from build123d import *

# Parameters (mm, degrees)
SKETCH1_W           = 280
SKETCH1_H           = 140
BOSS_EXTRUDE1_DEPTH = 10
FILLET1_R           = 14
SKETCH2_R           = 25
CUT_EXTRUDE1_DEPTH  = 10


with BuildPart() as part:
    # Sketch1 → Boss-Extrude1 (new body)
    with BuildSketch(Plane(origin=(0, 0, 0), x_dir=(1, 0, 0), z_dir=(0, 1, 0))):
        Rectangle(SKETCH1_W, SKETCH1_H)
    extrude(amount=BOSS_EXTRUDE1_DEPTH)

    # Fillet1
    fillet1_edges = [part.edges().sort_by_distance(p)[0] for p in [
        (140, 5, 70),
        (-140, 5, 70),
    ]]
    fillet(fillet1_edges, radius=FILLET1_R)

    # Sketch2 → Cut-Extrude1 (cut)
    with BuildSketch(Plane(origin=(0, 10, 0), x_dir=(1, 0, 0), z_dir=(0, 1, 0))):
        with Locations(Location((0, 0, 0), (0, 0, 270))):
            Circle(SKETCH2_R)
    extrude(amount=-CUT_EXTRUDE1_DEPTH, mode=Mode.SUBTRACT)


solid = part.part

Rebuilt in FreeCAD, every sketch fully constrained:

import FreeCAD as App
import Part
import Sketcher
from FreeCAD import Vector
Q = App.Units.Quantity


def edges_at(feature, points):
    """Names of the edges that pass closest to the given points."""
    edges = feature.Shape.Edges
    near = lambda p: min(range(len(edges)), key=lambda i: edges[i].distToShape(Part.Vertex(*p))[0])
    return sorted({f"Edge{near(p) + 1}" for p in points})

doc = App.newDocument("Part")
params = doc.addObject("Spreadsheet::Sheet", "Params")
for row, (alias, value) in enumerate([
    ("sketch1_width", "280 mm"),
    ("sketch1_height", "140 mm"),
    ("pad1_length", "10 mm"),
    ("fillet_radius", "14 mm"),
    ("sketch2_diameter", "50 mm"),
    ("pocket1_length", "10 mm"),
], start=1):
    params.set(f"A{row}", alias)
    params.set(f"B{row}", "=" + value)
    params.setAlias(f"B{row}", alias)

body = doc.addObject("PartDesign::Body", "Body")

sketch1 = body.newObject("Sketcher::SketchObject", "Sketch")
sketch1.AttachmentSupport = (doc.getObject("XZ_Plane"), [""])
sketch1.MapMode = "FlatFace"
sketch1.addGeometry([
    Part.LineSegment(Vector(-140, -70, 0), Vector(-140, 70, 0)),
    Part.LineSegment(Vector(-140, 70, 0), Vector(140, 70, 0)),
    Part.LineSegment(Vector(140, 70, 0), Vector(140, -70, 0)),
    Part.LineSegment(Vector(140, -70, 0), Vector(-140, -70, 0)),
], False)
sketch1.addConstraint([
    Sketcher.Constraint("Coincident", 0, 2, 1, 1),
    Sketcher.Constraint("Coincident", 1, 2, 2, 1),
    Sketcher.Constraint("Coincident", 2, 2, 3, 1),
    Sketcher.Constraint("Coincident", 3, 2, 0, 1),
    Sketcher.Constraint("Vertical", 0),
    Sketcher.Constraint("Horizontal", 1),
    Sketcher.Constraint("Vertical", 2),
    Sketcher.Constraint("Horizontal", 3),
    Sketcher.Constraint("Symmetric", 0, 2, 2, 2, -1, 1),
    Sketcher.Constraint("DistanceX", 1, 1, 1, 2, Q("280 mm")),
    Sketcher.Constraint("DistanceY", 0, 1, 0, 2, Q("140 mm")),
])
sketch1.setExpression("Constraints[9]", "Params.sketch1_width")
sketch1.setExpression("Constraints[10]", "Params.sketch1_height")
pad1 = body.newObject("PartDesign::Pad", "Pad")
pad1.Profile = sketch1
pad1.setExpression("Length", "Params.pad1_length")
pad1.Reversed = True
doc.recompute()

fillet = body.newObject("PartDesign::Fillet", "Fillet")
fillet.Base = (pad1, edges_at(pad1, [(140, 5, 70), (-140, 5, 70)]))
fillet.setExpression("Radius", "Params.fillet_radius")

sketch2 = body.newObject("Sketcher::SketchObject", "Sketch001")
sketch2.AttachmentSupport = (doc.getObject("XZ_Plane"), [""])
sketch2.MapMode = "FlatFace"
sketch2.AttachmentOffset = App.Placement(Vector(0, 0, -10), App.Rotation())
sketch2.addGeometry(Part.Circle(Vector(0, 0, 0), Vector(0, 0, 1), 25), False)
sketch2.addConstraint([
    Sketcher.Constraint("Coincident", 0, 3, -1, 1),
    Sketcher.Constraint("Diameter", 0, Q("50 mm")),
])
sketch2.setExpression("Constraints[1]", "Params.sketch2_diameter")
pocket1 = body.newObject("PartDesign::Pocket", "Pocket")
pocket1.Profile = sketch2
pocket1.setExpression("Length", "Params.pocket1_length")
pocket1.Reversed = True

doc.recompute()
